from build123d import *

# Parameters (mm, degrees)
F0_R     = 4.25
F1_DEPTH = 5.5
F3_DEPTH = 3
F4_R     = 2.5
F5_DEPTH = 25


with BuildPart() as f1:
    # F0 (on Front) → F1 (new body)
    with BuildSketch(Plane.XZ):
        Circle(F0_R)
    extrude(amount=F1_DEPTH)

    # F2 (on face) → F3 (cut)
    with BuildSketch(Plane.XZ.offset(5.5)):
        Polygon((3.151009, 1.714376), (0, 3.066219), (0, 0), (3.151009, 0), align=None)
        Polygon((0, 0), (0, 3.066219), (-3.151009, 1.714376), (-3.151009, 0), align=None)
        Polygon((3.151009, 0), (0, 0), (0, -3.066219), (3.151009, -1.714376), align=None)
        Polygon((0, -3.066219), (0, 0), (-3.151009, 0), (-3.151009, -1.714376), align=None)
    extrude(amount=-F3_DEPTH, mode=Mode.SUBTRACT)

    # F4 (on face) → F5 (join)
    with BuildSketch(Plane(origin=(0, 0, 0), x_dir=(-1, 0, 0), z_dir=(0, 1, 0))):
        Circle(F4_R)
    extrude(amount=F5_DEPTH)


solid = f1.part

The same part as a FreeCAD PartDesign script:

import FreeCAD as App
import Part
import Sketcher
from FreeCAD import Vector
Q = App.Units.Quantity


def add_polygon(sketch, points):
    """Adds a closed chain of lines whose ends are joined by coincident constraints."""
    first, n = sketch.GeometryCount, len(points)
    for a, b in zip(points, points[1:] + points[:1]):
        sketch.addGeometry(Part.LineSegment(App.Vector(*a, 0), App.Vector(*b, 0)), False)
    for i in range(n):
        sketch.addConstraint(Sketcher.Constraint("Coincident", first + i, 2, first + (i + 1) % n, 1))

doc = App.newDocument("Part")
body = doc.addObject("PartDesign::Body", "Body")

# Sketch on XZ plane
sketch1 = doc.addObject("Sketcher::SketchObject", "Sketch")
body.addObject(sketch1)
sketch1.AttachmentSupport = (doc.XZ_Plane, [""])
sketch1.MapMode = "FlatFace"
sketch1.addGeometry(Part.Circle(Vector(0, 0, 0), Vector(0, 0, 1), 4.2), False)
sketch1.addConstraint(Sketcher.Constraint("Coincident", 0, 3, -1, 1))
sketch1.addConstraint(Sketcher.Constraint("Diameter", 0, Q("8.5 mm")))
pad1 = doc.addObject("PartDesign::Pad", "Pad")
body.addObject(pad1)
pad1.Profile = sketch1
pad1.Length = 5.5

# Sketch on XZ plane
sketch2 = doc.addObject("Sketcher::SketchObject", "Sketch001")
body.addObject(sketch2)
sketch2.AttachmentSupport = (doc.XZ_Plane, [""])
sketch2.MapMode = "FlatFace"
sketch2.AttachmentOffset = App.Placement(Vector(0, 0, 5.5), App.Rotation())
add_polygon(sketch2, [(3.2, 1.7), (0, 3.1), (-3.2, 1.7), (-3.2, -1.7), (0, -3.1), (3.2, -1.7)])  # lines 0-5
sketch2.addConstraint(Sketcher.Constraint("Vertical", 2))
sketch2.addConstraint(Sketcher.Constraint("Vertical", 5))
sketch2.addConstraint(Sketcher.Constraint("Symmetric", 0, 2, 3, 2, -1, 1))
sketch2.addConstraint(Sketcher.Constraint("Symmetric", 1, 2, 4, 2, -1, 1))
sketch2.addConstraint(Sketcher.Constraint("PointOnObject", 0, 2, -2))
sketch2.addConstraint(Sketcher.Constraint("Parallel", 0, 3))
sketch2.addConstraint(Sketcher.Constraint("Horizontal", 2, 2, 4, 2))
sketch2.addConstraint(Sketcher.Constraint("DistanceY", 2, 2, 2, 1, Q("3.428752 mm")))
sketch2.addConstraint(Sketcher.Constraint("Distance", 0, Q("3.428752 mm")))
sketch2.addConstraint(Sketcher.Constraint("DistanceY", -1, 1, 0, 2, Q("3.066219 mm")))
pocket1 = doc.addObject("PartDesign::Pocket", "Pocket")
body.addObject(pocket1)
pocket1.Profile = sketch2
pocket1.Length = 3

# Sketch on XZ plane
sketch3 = doc.addObject("Sketcher::SketchObject", "Sketch002")
body.addObject(sketch3)
sketch3.AttachmentSupport = (doc.XZ_Plane, [""])
sketch3.MapMode = "FlatFace"
sketch3.addGeometry(Part.Circle(Vector(0, 0, 0), Vector(0, 0, 1), 2.5), False)
sketch3.addConstraint(Sketcher.Constraint("Coincident", 0, 3, -1, 1))
sketch3.addConstraint(Sketcher.Constraint("Diameter", 0, Q("5 mm")))
pad2 = doc.addObject("PartDesign::Pad", "Pad001")
body.addObject(pad2)
pad2.Profile = sketch3
pad2.Length = 25
pad2.Reversed = True

doc.recompute()
